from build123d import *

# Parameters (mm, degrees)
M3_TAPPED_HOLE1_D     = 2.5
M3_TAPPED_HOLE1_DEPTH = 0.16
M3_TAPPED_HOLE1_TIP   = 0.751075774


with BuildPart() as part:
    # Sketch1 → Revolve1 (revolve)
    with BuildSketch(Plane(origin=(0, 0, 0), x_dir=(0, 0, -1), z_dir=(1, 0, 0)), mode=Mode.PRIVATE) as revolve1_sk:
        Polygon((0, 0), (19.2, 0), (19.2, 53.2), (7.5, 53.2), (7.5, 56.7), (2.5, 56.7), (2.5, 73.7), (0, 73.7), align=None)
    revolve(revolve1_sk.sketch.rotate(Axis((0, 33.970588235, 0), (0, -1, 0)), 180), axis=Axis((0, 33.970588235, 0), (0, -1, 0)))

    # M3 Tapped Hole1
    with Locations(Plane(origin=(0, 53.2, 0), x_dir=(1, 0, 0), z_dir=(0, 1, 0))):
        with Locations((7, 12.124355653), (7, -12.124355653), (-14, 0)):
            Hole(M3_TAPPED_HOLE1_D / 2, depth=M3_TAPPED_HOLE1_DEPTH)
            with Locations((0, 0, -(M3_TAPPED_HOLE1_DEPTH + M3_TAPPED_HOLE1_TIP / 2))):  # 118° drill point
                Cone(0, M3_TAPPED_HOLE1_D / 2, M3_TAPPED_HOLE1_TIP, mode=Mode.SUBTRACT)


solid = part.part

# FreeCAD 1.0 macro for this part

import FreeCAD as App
import Part
import Sketcher
from FreeCAD import Vector
Q = App.Units.Quantity


def add_polygon(sketch, points):
    """Adds a closed chain of lines whose ends are joined by coincident constraints."""
    first, n = sketch.GeometryCount, len(points)
    for a, b in zip(points, points[1:] + points[:1]):
        sketch.addGeometry(Part.LineSegment(App.Vector(*a, 0), App.Vector(*b, 0)), False)
    for i in range(n):
        sketch.addConstraint(Sketcher.Constraint("Coincident", first + i, 2, first + (i + 1) % n, 1))

doc = App.newDocument("Part")
body = doc.addObject("PartDesign::Body", "Body")

# Sketch on YZ plane
sketch1 = body.newObject("Sketcher::SketchObject", "Sketch")
sketch1.AttachmentSupport = (doc.getObject("YZ_Plane"), [""])
sketch1.MapMode = "FlatFace"
add_polygon(sketch1, [(0, 0), (0, -19.2), (53.2, -19.2), (53.2, -7.5), (56.7, -7.5), (56.7, -2.5), (73.7, -2.5), (73.7, 0)])  # lines 0-7
sketch1.addConstraint(Sketcher.Constraint("Vertical", 0))
sketch1.addConstraint(Sketcher.Constraint("Horizontal", 1))
sketch1.addConstraint(Sketcher.Constraint("Vertical", 2))
sketch1.addConstraint(Sketcher.Constraint("Horizontal", 3))
sketch1.addConstraint(Sketcher.Constraint("Vertical", 4))
sketch1.addConstraint(Sketcher.Constraint("Horizontal", 5))
sketch1.addConstraint(Sketcher.Constraint("Vertical", 6))
sketch1.addConstraint(Sketcher.Constraint("Horizontal", 7))
sketch1.addConstraint(Sketcher.Constraint("Coincident", 7, 2, -1, 1))
sketch1.addConstraint(Sketcher.Constraint("DistanceX", 5, 1, 5, 2, Q("17 mm")))
sketch1.addConstraint(Sketcher.Constraint("DistanceY", 4, 1, 4, 2, Q("5 mm")))
sketch1.addConstraint(Sketcher.Constraint("DistanceX", 1, 1, 1, 2, Q("53.2 mm")))
sketch1.addConstraint(Sketcher.Constraint("DistanceX", 3, 1, 3, 2, Q("3.5 mm")))
sketch1.addConstraint(Sketcher.Constraint("DistanceY", 0, 2, 0, 1, Q("19.2 mm")))
sketch1.addConstraint(Sketcher.Constraint("DistanceY", 2, 1, 2, 2, Q("11.7 mm")))
revolution = body.newObject("PartDesign::Revolution", "Revolution")
revolution.Profile = sketch1
revolution.ReferenceAxis = (sketch1, ["H_Axis"])
revolution.Angle = 360

# Sketch on XZ plane
sketch2 = body.newObject("Sketcher::SketchObject", "Sketch001")
sketch2.AttachmentSupport = (doc.getObject("XZ_Plane"), [""])
sketch2.MapMode = "FlatFace"
sketch2.AttachmentOffset = App.Placement(Vector(0, 0, -53.2), App.Rotation())
sketch2.addGeometry(Part.Circle(Vector(7, -12.1, 0), Vector(0, 0, 1), 1.2), False)
sketch2.addGeometry(Part.Circle(Vector(7, 12.1, 0), Vector(0, 0, 1), 1.2), False)
sketch2.addGeometry(Part.Circle(Vector(-14, 0, 0), Vector(0, 0, 1), 1.2), False)
sketch2.addConstraint(Sketcher.Constraint("Equal", 0, 1))
sketch2.addConstraint(Sketcher.Constraint("Equal", 1, 2))
sketch2.addConstraint(Sketcher.Constraint("Symmetric", 0, 3, 1, 3, -1))
sketch2.addConstraint(Sketcher.Constraint("PointOnObject", 2, 3, -1))
sketch2.addConstraint(Sketcher.Constraint("Diameter", 0, Q("2.5 mm")))
sketch2.addConstraint(Sketcher.Constraint("DistanceX", -1, 1, 0, 3, Q("7 mm")))
sketch2.addConstraint(Sketcher.Constraint("DistanceX", 2, 3, -1, 1, Q("14 mm")))
sketch2.addConstraint(Sketcher.Constraint("DistanceY", 0, 3, 1, 3, Q("24.248711 mm")))
doc.recompute()
hole = body.newObject("PartDesign::Hole", "Hole")
hole.Profile = sketch2
hole.ThreadType = "None"
hole.Diameter = 2.5
hole.DepthType = "Dimension"
hole.Depth = 0.16
hole.DrillPoint = "Angled"
hole.DrillPointAngle = 118
hole.Reversed = True

doc.recompute()
